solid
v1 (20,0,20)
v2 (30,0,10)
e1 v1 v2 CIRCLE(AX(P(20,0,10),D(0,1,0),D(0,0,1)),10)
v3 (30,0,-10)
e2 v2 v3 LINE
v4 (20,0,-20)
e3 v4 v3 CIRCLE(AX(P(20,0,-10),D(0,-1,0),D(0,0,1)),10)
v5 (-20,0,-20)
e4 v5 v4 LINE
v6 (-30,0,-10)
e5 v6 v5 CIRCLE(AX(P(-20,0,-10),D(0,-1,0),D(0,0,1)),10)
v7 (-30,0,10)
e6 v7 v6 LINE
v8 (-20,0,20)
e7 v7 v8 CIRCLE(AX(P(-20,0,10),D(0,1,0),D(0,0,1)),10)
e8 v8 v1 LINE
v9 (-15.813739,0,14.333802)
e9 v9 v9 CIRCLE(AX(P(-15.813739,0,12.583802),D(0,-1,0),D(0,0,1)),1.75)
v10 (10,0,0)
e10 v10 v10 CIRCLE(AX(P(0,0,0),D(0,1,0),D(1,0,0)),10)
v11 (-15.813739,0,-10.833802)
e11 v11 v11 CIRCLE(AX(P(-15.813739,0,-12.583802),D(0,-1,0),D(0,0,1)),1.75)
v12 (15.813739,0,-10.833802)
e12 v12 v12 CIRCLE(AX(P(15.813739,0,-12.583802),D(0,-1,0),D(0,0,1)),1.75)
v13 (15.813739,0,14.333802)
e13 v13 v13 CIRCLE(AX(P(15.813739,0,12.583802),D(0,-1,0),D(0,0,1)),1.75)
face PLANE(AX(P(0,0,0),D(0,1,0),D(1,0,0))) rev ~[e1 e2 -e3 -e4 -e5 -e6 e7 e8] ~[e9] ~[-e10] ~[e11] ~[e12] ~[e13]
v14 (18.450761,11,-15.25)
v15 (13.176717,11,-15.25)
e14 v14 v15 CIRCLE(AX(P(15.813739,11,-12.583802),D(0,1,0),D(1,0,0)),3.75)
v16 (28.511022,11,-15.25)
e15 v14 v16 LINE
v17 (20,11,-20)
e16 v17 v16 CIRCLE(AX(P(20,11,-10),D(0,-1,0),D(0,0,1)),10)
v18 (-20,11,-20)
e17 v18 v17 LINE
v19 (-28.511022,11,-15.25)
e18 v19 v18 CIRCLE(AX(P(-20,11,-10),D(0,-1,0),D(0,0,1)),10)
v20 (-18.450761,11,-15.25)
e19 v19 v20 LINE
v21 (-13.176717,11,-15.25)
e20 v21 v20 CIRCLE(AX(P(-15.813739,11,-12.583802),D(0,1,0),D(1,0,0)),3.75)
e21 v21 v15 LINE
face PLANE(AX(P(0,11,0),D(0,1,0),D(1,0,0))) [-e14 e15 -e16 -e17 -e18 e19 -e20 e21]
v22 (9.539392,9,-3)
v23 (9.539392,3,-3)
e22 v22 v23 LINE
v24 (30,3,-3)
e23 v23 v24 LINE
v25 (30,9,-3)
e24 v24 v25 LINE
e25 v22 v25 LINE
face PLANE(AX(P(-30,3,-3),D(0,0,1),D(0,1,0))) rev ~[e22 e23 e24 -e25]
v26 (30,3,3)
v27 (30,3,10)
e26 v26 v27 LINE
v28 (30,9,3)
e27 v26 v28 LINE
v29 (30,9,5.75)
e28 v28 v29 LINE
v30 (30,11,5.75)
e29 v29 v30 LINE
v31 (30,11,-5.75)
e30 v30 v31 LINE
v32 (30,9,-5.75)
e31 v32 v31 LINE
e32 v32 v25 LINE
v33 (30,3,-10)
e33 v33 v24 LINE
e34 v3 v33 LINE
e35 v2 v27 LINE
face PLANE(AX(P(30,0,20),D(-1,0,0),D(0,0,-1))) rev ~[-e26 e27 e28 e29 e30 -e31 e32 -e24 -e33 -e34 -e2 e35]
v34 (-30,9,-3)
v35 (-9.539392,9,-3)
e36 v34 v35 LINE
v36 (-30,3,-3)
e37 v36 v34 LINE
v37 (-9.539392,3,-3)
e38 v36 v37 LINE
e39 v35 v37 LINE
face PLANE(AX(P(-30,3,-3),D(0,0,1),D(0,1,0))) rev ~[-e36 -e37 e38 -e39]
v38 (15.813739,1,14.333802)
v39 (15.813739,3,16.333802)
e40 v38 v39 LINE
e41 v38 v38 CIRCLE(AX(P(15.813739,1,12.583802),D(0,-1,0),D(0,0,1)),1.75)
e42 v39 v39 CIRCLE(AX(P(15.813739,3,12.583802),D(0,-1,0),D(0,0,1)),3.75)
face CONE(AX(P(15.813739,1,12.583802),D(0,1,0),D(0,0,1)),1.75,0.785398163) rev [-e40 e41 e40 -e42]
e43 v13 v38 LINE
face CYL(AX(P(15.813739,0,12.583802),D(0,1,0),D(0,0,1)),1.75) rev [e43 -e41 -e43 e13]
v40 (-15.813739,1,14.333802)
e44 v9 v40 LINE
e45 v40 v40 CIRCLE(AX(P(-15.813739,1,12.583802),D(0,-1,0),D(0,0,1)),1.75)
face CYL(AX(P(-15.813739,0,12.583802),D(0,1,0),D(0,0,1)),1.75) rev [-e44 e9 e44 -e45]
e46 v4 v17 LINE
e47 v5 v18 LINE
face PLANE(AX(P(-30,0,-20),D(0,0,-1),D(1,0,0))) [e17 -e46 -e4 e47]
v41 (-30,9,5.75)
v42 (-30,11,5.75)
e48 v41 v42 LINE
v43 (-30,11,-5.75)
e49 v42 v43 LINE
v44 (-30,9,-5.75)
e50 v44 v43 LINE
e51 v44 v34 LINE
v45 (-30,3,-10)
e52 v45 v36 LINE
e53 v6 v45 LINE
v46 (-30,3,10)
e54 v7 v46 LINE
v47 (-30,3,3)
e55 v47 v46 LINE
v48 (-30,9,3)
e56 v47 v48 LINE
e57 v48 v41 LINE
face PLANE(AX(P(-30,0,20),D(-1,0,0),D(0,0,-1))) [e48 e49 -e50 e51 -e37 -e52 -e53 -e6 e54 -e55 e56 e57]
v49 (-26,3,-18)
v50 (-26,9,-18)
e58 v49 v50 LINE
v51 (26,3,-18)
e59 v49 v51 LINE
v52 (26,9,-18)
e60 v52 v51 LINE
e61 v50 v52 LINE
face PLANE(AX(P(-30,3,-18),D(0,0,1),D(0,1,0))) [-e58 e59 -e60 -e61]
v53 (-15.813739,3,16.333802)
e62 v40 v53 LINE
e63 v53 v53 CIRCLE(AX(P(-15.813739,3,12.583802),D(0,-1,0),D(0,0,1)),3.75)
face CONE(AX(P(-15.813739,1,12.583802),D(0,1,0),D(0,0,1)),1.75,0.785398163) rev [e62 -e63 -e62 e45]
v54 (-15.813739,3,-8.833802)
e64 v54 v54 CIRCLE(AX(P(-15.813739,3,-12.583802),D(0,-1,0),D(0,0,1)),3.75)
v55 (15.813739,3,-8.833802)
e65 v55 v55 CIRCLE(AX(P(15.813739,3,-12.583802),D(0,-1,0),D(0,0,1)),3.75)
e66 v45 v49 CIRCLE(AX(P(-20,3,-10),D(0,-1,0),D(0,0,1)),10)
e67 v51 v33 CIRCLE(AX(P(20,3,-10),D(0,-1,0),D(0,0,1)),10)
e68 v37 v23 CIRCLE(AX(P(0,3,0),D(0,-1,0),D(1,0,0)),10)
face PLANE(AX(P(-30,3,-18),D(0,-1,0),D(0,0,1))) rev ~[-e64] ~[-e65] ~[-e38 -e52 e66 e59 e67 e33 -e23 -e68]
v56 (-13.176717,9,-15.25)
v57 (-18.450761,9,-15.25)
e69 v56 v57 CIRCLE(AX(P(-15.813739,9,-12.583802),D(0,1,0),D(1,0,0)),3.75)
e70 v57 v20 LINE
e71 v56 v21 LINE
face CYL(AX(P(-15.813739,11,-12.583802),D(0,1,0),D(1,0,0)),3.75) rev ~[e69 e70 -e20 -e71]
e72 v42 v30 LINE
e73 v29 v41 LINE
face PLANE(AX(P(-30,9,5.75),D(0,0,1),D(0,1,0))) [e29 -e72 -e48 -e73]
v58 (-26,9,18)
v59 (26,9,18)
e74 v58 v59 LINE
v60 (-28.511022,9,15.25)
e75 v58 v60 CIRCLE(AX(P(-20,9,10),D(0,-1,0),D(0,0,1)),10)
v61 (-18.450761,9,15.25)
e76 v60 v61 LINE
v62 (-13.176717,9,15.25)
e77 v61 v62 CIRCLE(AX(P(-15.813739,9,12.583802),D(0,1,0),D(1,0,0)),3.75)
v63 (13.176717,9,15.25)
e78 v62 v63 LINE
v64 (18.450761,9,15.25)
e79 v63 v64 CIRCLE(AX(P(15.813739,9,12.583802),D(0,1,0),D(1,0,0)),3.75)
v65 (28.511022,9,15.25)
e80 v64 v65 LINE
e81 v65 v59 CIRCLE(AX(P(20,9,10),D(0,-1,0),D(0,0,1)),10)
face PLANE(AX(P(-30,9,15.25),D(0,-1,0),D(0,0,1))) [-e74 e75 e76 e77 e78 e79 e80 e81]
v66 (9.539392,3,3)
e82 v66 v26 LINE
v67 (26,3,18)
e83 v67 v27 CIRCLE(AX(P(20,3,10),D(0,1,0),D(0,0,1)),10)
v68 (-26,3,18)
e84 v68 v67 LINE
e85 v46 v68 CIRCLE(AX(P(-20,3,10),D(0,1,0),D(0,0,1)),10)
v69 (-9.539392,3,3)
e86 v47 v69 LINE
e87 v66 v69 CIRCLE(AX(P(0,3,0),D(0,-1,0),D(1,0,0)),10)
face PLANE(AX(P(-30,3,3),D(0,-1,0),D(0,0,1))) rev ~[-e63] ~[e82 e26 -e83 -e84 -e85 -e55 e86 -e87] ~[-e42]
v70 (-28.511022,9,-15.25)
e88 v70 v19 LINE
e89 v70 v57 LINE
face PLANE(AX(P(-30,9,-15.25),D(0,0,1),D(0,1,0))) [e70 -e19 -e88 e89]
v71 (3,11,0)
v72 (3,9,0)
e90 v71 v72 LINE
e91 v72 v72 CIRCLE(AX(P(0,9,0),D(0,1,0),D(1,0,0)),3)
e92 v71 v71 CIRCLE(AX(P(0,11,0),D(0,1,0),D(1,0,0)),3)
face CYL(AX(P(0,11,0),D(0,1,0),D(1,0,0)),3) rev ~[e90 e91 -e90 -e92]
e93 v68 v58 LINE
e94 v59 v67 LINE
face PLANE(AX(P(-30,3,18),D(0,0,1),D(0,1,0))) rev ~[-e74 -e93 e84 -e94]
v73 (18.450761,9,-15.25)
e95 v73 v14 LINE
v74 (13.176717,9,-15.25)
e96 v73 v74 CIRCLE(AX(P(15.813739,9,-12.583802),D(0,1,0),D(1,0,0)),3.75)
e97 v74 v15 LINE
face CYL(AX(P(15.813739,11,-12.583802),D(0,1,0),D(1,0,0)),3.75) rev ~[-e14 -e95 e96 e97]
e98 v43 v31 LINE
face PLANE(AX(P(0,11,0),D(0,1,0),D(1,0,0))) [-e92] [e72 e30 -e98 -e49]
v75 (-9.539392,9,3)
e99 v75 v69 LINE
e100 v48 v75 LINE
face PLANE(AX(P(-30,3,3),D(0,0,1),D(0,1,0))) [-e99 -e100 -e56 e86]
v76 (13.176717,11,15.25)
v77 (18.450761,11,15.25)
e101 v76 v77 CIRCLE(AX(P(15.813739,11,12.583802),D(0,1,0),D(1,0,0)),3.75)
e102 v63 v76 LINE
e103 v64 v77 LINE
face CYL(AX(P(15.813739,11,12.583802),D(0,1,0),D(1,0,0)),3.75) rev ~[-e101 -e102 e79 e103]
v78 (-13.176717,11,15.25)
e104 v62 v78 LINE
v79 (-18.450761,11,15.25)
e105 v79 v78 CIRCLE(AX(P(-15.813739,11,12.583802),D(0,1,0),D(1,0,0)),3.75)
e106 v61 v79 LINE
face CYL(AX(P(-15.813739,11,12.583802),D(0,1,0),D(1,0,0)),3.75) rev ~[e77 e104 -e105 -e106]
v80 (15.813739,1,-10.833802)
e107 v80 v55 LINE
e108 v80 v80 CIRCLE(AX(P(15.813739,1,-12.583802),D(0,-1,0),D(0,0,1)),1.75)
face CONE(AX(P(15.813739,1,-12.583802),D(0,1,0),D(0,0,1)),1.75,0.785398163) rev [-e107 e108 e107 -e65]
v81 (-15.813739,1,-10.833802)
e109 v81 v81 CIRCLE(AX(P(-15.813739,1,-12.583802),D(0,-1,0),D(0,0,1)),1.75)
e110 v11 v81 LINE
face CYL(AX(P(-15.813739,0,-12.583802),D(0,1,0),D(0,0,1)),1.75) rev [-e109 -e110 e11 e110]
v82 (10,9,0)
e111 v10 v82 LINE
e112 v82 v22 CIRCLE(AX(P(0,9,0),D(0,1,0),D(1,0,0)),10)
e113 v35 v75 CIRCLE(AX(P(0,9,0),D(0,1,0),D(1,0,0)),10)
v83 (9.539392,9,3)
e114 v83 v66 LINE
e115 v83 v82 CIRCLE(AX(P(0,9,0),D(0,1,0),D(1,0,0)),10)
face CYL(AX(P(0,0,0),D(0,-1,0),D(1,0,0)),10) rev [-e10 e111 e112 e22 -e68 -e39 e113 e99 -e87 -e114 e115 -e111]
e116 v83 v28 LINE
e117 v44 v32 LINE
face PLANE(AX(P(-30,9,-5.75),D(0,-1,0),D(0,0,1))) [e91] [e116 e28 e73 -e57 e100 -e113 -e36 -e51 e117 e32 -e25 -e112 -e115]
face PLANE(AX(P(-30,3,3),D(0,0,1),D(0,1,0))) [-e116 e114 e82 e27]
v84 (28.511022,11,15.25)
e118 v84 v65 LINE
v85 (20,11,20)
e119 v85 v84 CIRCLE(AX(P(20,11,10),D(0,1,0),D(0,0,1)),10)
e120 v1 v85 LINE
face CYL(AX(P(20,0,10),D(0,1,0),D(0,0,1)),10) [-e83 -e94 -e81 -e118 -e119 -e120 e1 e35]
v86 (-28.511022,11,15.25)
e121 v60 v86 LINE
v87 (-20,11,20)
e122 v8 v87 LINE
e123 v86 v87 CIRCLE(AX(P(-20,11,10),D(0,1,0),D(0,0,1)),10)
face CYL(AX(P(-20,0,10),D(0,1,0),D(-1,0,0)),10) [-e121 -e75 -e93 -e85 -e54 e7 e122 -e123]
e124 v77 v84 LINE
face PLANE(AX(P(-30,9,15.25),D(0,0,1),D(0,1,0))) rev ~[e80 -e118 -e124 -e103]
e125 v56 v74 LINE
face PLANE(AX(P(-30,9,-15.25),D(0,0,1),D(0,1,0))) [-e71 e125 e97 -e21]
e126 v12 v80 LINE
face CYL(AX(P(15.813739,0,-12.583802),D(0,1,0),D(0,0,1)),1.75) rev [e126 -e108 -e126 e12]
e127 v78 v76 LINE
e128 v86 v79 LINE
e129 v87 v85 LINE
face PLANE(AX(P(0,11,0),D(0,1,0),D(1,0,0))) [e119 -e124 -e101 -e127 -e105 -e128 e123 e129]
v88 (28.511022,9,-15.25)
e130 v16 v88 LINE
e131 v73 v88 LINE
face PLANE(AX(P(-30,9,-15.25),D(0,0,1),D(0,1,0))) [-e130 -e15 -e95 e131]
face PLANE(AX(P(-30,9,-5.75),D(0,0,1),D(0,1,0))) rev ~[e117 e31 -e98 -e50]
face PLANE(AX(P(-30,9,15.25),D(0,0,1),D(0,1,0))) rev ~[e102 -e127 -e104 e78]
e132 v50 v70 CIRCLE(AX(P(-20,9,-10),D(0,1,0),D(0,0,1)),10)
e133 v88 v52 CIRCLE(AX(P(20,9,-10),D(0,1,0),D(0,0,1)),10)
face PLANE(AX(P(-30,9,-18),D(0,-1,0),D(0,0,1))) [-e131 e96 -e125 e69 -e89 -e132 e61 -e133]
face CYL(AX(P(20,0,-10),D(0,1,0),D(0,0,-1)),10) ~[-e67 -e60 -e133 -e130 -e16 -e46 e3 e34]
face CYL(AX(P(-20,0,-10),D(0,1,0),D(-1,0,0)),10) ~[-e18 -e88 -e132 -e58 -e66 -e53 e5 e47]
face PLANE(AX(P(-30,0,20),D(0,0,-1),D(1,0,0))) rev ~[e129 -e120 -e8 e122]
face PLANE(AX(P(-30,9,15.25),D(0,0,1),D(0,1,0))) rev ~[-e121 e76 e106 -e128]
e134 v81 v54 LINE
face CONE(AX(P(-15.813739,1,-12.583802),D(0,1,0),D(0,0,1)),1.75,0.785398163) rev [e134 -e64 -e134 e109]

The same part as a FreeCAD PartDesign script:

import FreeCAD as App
import Part
import Sketcher
from FreeCAD import Vector
Q = App.Units.Quantity


def edges_at(feature, points):
    """Names of the edges that pass closest to the given points."""
    edges = feature.Shape.Edges
    near = lambda p: min(range(len(edges)), key=lambda i: edges[i].distToShape(Part.Vertex(*p))[0])
    return sorted({f"Edge{near(p) + 1}" for p in points})


def add_polygon(sketch, points):
    """Adds a closed chain of lines whose ends are joined by coincident constraints."""
    first, n = sketch.GeometryCount, len(points)
    for a, b in zip(points, points[1:] + points[:1]):
        sketch.addGeometry(Part.LineSegment(App.Vector(*a, 0), App.Vector(*b, 0)), False)
    for i in range(n):
        sketch.addConstraint(Sketcher.Constraint("Coincident", first + i, 2, first + (i + 1) % n, 1))

doc = App.newDocument("Part")
body = doc.addObject("PartDesign::Body", "Body")

# Sketch on XZ plane
sketch1 = doc.addObject("Sketcher::SketchObject", "Sketch")
body.addObject(sketch1)
sketch1.AttachmentSupport = (doc.XZ_Plane, [""])
sketch1.MapMode = "FlatFace"
add_polygon(sketch1, [(-30, -20), (-30, 20), (30, 20), (30, -20)])  # lines 0-3
sketch1.addConstraint(Sketcher.Constraint("Vertical", 0))
sketch1.addConstraint(Sketcher.Constraint("Horizontal", 1))
sketch1.addConstraint(Sketcher.Constraint("Vertical", 2))
sketch1.addConstraint(Sketcher.Constraint("Horizontal", 3))
sketch1.addConstraint(Sketcher.Constraint("Symmetric", 0, 2, 2, 2, -1, 1))
sketch1.addConstraint(Sketcher.Constraint("DistanceX", 1, 1, 1, 2, Q("60 mm")))
sketch1.addConstraint(Sketcher.Constraint("DistanceY", 0, 1, 0, 2, Q("40 mm")))
pad1 = doc.addObject("PartDesign::Pad", "Pad")
body.addObject(pad1)
pad1.Profile = sketch1
pad1.Length = 11
pad1.Reversed = True

# Sketch on YZ plane
sketch2 = doc.addObject("Sketcher::SketchObject", "Sketch001")
body.addObject(sketch2)
sketch2.AttachmentSupport = (doc.YZ_Plane, [""])
sketch2.MapMode = "FlatFace"
sketch2.AttachmentOffset = App.Placement(Vector(0, 0, -30), App.Rotation())
add_polygon(sketch2, [(9, 3), (3, 3), (3, 18), (9, 18), (9, 15.2), (11, 15.2), (11, 5.8), (9, 5.8)])  # lines 0-7
add_polygon(sketch2, [(9, -18), (3, -18), (3, -3), (9, -3), (9, -5.8), (11, -5.8), (11, -15.2), (9, -15.2)])  # lines 8-15
sketch2.addConstraint(Sketcher.Constraint("Horizontal", 0))
sketch2.addConstraint(Sketcher.Constraint("Vertical", 1))
sketch2.addConstraint(Sketcher.Constraint("Horizontal", 2))
sketch2.addConstraint(Sketcher.Constraint("Vertical", 3))
sketch2.addConstraint(Sketcher.Constraint("Horizontal", 4))
sketch2.addConstraint(Sketcher.Constraint("Vertical", 5))
sketch2.addConstraint(Sketcher.Constraint("Horizontal", 6))
sketch2.addConstraint(Sketcher.Constraint("Vertical", 7))
sketch2.addConstraint(Sketcher.Constraint("Horizontal", 8))
sketch2.addConstraint(Sketcher.Constraint("Vertical", 9))
sketch2.addConstraint(Sketcher.Constraint("Horizontal", 10))
sketch2.addConstraint(Sketcher.Constraint("Vertical", 11))
sketch2.addConstraint(Sketcher.Constraint("Horizontal", 12))
sketch2.addConstraint(Sketcher.Constraint("Vertical", 13))
sketch2.addConstraint(Sketcher.Constraint("Horizontal", 14))
sketch2.addConstraint(Sketcher.Constraint("Vertical", 15))
sketch2.addConstraint(Sketcher.Constraint("Symmetric", 1, 2, 8, 2, -1))
sketch2.addConstraint(Sketcher.Constraint("Symmetric", 7, 2, 10, 2, -1))
sketch2.addConstraint(Sketcher.Constraint("Symmetric", 5, 2, 12, 2, -1))
sketch2.addConstraint(Sketcher.Constraint("Symmetric", 3, 2, 14, 2, -1))
sketch2.addConstraint(Sketcher.Constraint("Vertical", 3, 2, 6, 2))
sketch2.addConstraint(Sketcher.Constraint("Equal", 3, 7))
sketch2.addConstraint(Sketcher.Constraint("DistanceX", 0, 2, 0, 1, Q("6 mm")))
sketch2.addConstraint(Sketcher.Constraint("DistanceX", 4, 1, 4, 2, Q("2 mm")))
sketch2.addConstraint(Sketcher.Constraint("DistanceY", 1, 1, 1, 2, Q("15 mm")))
sketch2.addConstraint(Sketcher.Constraint("DistanceY", 5, 2, 5, 1, Q("9.5 mm")))
sketch2.addConstraint(Sketcher.Constraint("DistanceX", -1, 1, 0, 2, Q("3 mm")))
sketch2.addConstraint(Sketcher.Constraint("DistanceY", -1, 1, 0, 2, Q("3 mm")))
pocket1 = doc.addObject("PartDesign::Pocket", "Pocket")
body.addObject(pocket1)
pocket1.Profile = sketch2
pocket1.Type = "ThroughAll"
pocket1.Reversed = True

# Sketch on YZ plane
sketch3 = doc.addObject("Sketcher::SketchObject", "Sketch002")
body.addObject(sketch3)
sketch3.AttachmentSupport = (doc.YZ_Plane, [""])
sketch3.MapMode = "FlatFace"
sketch3.AttachmentOffset = App.Placement(Vector(0, 0, 15.813739), App.Rotation())
add_polygon(sketch3, [(0, -12.6), (3, -12.6), (3, -8.8), (1, -10.8), (0, -10.8)])  # lines 0-4
sketch3.addGeometry(Part.LineSegment(Vector(3, -12.6, 0), Vector(0, -12.6, 0)), True)  # axis
sketch3.addConstraint(Sketcher.Constraint("Horizontal", 0))
sketch3.addConstraint(Sketcher.Constraint("Vertical", 1))
sketch3.addConstraint(Sketcher.Constraint("Horizontal", 3))
sketch3.addConstraint(Sketcher.Constraint("Vertical", 4))
sketch3.addConstraint(Sketcher.Constraint("Horizontal", 5))
sketch3.addConstraint(Sketcher.Constraint("Coincident", 5, 1, 0, 2))
sketch3.addConstraint(Sketcher.Constraint("PointOnObject", 3, 2, -2))
sketch3.addConstraint(Sketcher.Constraint("PointOnObject", 5, 2, -2))
sketch3.addConstraint(Sketcher.Constraint("DistanceX", 0, 1, 0, 2, Q("3 mm")))
sketch3.addConstraint(Sketcher.Constraint("DistanceX", 3, 2, 3, 1, Q("1 mm")))
sketch3.addConstraint(Sketcher.Constraint("Angle", 2, Q("-135 deg")))
sketch3.addConstraint(Sketcher.Constraint("DistanceY", 1, 1, 1, 2, Q("3.75 mm")))
sketch3.addConstraint(Sketcher.Constraint("DistanceY", 0, 2, -1, 1, Q("12.583802 mm")))
groove = doc.addObject("PartDesign::Groove", "Groove")
body.addObject(groove)
groove.Profile = sketch3
groove.ReferenceAxis = (sketch3, ["Axis0"])
groove.Angle = 360
doc.recompute()

linearpattern = doc.addObject("PartDesign::LinearPattern", "LinearPattern")
body.addObject(linearpattern)
linearpattern.Originals = [groove]
linearpattern.Direction = (doc.Z_Axis, [""])
linearpattern.Mode = "offset"
linearpattern.Offset = 25.167603
linearpattern.Occurrences = 2
body.Tip = linearpattern
doc.recompute()

datumline = doc.addObject("PartDesign::Line", "DatumLine")
body.addObject(datumline)
datumline.Placement = App.Placement(Vector(0, 0, 0), App.Rotation(Vector(0, 0, 1), Vector(-0.782487958, 0, 0.622665717)))
linearpattern2 = doc.addObject("PartDesign::LinearPattern", "LinearPattern001")
body.addObject(linearpattern2)
linearpattern2.Originals = [groove]
linearpattern2.Direction = (datumline, [""])
linearpattern2.Mode = "offset"
linearpattern2.Offset = 40.419124
linearpattern2.Occurrences = 2
body.Tip = linearpattern2
doc.recompute()

linearpattern3 = doc.addObject("PartDesign::LinearPattern", "LinearPattern002")
body.addObject(linearpattern3)
linearpattern3.Originals = [groove]
linearpattern3.Direction = (doc.X_Axis, [""])
linearpattern3.Mode = "offset"
linearpattern3.Offset = 31.627478
linearpattern3.Occurrences = 2
linearpattern3.Reversed = True
body.Tip = linearpattern3

# Sketch on XZ plane
sketch4 = doc.addObject("Sketcher::SketchObject", "Sketch003")
body.addObject(sketch4)
sketch4.AttachmentSupport = (doc.XZ_Plane, [""])
sketch4.MapMode = "FlatFace"
sketch4.addGeometry(Part.Circle(Vector(0, 0, 0), Vector(0, 0, 1), 10), False)
sketch4.addConstraint(Sketcher.Constraint("Coincident", 0, 3, -1, 1))
sketch4.addConstraint(Sketcher.Constraint("Diameter", 0, Q("20 mm")))
pocket2 = doc.addObject("PartDesign::Pocket", "Pocket001")
body.addObject(pocket2)
pocket2.Profile = sketch4
pocket2.Length = 9

# Sketch on XZ plane
sketch5 = doc.addObject("Sketcher::SketchObject", "Sketch004")
body.addObject(sketch5)
sketch5.AttachmentSupport = (doc.XZ_Plane, [""])
sketch5.MapMode = "FlatFace"
sketch5.AttachmentOffset = App.Placement(Vector(0, 0, -11), App.Rotation())
sketch5.addGeometry(Part.Circle(Vector(0, 0, 0), Vector(0, 0, 1), 3), False)
sketch5.addConstraint(Sketcher.Constraint("Coincident", 0, 3, -1, 1))
sketch5.addConstraint(Sketcher.Constraint("Diameter", 0, Q("6 mm")))
pocket3 = doc.addObject("PartDesign::Pocket", "Pocket002")
body.addObject(pocket3)
pocket3.Profile = sketch5
pocket3.Type = "ThroughAll"
pocket3.Reversed = True

# Sketch on XZ plane
sketch6 = doc.addObject("Sketcher::SketchObject", "Sketch005")
body.addObject(sketch6)
sketch6.AttachmentSupport = (doc.XZ_Plane, [""])
sketch6.MapMode = "FlatFace"
sketch6.AttachmentOffset = App.Placement(Vector(0, 0, -11), App.Rotation())
sketch6.addGeometry(Part.Circle(Vector(-15.8, 12.6, 0), Vector(0, 0, 1), 3.8), False)
sketch6.addGeometry(Part.Circle(Vector(15.8, 12.6, 0), Vector(0, 0, 1), 3.8), False)
sketch6.addGeometry(Part.Circle(Vector(15.8, -12.6, 0), Vector(0, 0, 1), 3.8), False)
sketch6.addGeometry(Part.Circle(Vector(-15.8, -12.6, 0), Vector(0, 0, 1), 3.8), False)
sketch6.addConstraint(Sketcher.Constraint("Equal", 0, 1))
sketch6.addConstraint(Sketcher.Constraint("Equal", 1, 2))
sketch6.addConstraint(Sketcher.Constraint("Equal", 2, 3))
sketch6.addConstraint(Sketcher.Constraint("Symmetric", 0, 3, 2, 3, -1, 1))
sketch6.addConstraint(Sketcher.Constraint("Symmetric", 1, 3, 3, 3, -1, 1))
sketch6.addConstraint(Sketcher.Constraint("Symmetric", 0, 3, 1, 3, -2))
sketch6.addConstraint(Sketcher.Constraint("Diameter", 0, Q("7.5 mm")))
sketch6.addConstraint(Sketcher.Constraint("DistanceY", -1, 1, 0, 3, Q("12.583802 mm")))
sketch6.addConstraint(Sketcher.Constraint("DistanceX", 0, 3, -1, 1, Q("15.813739 mm")))
pocket4 = doc.addObject("PartDesign::Pocket", "Pocket003")
body.addObject(pocket4)
pocket4.Profile = sketch6
pocket4.Length = 2
pocket4.Reversed = True
doc.recompute()

fillet = doc.addObject("PartDesign::Fillet", "Fillet")
body.addObject(fillet)
fillet.Base = (pocket4, edges_at(pocket4, [
    (30, 5.5, -20),
    (30, 5.5, 20),
    (-30, 5.5, 20),
    (-30, 5.5, -20),
]))
fillet.Radius = 10

doc.recompute()
